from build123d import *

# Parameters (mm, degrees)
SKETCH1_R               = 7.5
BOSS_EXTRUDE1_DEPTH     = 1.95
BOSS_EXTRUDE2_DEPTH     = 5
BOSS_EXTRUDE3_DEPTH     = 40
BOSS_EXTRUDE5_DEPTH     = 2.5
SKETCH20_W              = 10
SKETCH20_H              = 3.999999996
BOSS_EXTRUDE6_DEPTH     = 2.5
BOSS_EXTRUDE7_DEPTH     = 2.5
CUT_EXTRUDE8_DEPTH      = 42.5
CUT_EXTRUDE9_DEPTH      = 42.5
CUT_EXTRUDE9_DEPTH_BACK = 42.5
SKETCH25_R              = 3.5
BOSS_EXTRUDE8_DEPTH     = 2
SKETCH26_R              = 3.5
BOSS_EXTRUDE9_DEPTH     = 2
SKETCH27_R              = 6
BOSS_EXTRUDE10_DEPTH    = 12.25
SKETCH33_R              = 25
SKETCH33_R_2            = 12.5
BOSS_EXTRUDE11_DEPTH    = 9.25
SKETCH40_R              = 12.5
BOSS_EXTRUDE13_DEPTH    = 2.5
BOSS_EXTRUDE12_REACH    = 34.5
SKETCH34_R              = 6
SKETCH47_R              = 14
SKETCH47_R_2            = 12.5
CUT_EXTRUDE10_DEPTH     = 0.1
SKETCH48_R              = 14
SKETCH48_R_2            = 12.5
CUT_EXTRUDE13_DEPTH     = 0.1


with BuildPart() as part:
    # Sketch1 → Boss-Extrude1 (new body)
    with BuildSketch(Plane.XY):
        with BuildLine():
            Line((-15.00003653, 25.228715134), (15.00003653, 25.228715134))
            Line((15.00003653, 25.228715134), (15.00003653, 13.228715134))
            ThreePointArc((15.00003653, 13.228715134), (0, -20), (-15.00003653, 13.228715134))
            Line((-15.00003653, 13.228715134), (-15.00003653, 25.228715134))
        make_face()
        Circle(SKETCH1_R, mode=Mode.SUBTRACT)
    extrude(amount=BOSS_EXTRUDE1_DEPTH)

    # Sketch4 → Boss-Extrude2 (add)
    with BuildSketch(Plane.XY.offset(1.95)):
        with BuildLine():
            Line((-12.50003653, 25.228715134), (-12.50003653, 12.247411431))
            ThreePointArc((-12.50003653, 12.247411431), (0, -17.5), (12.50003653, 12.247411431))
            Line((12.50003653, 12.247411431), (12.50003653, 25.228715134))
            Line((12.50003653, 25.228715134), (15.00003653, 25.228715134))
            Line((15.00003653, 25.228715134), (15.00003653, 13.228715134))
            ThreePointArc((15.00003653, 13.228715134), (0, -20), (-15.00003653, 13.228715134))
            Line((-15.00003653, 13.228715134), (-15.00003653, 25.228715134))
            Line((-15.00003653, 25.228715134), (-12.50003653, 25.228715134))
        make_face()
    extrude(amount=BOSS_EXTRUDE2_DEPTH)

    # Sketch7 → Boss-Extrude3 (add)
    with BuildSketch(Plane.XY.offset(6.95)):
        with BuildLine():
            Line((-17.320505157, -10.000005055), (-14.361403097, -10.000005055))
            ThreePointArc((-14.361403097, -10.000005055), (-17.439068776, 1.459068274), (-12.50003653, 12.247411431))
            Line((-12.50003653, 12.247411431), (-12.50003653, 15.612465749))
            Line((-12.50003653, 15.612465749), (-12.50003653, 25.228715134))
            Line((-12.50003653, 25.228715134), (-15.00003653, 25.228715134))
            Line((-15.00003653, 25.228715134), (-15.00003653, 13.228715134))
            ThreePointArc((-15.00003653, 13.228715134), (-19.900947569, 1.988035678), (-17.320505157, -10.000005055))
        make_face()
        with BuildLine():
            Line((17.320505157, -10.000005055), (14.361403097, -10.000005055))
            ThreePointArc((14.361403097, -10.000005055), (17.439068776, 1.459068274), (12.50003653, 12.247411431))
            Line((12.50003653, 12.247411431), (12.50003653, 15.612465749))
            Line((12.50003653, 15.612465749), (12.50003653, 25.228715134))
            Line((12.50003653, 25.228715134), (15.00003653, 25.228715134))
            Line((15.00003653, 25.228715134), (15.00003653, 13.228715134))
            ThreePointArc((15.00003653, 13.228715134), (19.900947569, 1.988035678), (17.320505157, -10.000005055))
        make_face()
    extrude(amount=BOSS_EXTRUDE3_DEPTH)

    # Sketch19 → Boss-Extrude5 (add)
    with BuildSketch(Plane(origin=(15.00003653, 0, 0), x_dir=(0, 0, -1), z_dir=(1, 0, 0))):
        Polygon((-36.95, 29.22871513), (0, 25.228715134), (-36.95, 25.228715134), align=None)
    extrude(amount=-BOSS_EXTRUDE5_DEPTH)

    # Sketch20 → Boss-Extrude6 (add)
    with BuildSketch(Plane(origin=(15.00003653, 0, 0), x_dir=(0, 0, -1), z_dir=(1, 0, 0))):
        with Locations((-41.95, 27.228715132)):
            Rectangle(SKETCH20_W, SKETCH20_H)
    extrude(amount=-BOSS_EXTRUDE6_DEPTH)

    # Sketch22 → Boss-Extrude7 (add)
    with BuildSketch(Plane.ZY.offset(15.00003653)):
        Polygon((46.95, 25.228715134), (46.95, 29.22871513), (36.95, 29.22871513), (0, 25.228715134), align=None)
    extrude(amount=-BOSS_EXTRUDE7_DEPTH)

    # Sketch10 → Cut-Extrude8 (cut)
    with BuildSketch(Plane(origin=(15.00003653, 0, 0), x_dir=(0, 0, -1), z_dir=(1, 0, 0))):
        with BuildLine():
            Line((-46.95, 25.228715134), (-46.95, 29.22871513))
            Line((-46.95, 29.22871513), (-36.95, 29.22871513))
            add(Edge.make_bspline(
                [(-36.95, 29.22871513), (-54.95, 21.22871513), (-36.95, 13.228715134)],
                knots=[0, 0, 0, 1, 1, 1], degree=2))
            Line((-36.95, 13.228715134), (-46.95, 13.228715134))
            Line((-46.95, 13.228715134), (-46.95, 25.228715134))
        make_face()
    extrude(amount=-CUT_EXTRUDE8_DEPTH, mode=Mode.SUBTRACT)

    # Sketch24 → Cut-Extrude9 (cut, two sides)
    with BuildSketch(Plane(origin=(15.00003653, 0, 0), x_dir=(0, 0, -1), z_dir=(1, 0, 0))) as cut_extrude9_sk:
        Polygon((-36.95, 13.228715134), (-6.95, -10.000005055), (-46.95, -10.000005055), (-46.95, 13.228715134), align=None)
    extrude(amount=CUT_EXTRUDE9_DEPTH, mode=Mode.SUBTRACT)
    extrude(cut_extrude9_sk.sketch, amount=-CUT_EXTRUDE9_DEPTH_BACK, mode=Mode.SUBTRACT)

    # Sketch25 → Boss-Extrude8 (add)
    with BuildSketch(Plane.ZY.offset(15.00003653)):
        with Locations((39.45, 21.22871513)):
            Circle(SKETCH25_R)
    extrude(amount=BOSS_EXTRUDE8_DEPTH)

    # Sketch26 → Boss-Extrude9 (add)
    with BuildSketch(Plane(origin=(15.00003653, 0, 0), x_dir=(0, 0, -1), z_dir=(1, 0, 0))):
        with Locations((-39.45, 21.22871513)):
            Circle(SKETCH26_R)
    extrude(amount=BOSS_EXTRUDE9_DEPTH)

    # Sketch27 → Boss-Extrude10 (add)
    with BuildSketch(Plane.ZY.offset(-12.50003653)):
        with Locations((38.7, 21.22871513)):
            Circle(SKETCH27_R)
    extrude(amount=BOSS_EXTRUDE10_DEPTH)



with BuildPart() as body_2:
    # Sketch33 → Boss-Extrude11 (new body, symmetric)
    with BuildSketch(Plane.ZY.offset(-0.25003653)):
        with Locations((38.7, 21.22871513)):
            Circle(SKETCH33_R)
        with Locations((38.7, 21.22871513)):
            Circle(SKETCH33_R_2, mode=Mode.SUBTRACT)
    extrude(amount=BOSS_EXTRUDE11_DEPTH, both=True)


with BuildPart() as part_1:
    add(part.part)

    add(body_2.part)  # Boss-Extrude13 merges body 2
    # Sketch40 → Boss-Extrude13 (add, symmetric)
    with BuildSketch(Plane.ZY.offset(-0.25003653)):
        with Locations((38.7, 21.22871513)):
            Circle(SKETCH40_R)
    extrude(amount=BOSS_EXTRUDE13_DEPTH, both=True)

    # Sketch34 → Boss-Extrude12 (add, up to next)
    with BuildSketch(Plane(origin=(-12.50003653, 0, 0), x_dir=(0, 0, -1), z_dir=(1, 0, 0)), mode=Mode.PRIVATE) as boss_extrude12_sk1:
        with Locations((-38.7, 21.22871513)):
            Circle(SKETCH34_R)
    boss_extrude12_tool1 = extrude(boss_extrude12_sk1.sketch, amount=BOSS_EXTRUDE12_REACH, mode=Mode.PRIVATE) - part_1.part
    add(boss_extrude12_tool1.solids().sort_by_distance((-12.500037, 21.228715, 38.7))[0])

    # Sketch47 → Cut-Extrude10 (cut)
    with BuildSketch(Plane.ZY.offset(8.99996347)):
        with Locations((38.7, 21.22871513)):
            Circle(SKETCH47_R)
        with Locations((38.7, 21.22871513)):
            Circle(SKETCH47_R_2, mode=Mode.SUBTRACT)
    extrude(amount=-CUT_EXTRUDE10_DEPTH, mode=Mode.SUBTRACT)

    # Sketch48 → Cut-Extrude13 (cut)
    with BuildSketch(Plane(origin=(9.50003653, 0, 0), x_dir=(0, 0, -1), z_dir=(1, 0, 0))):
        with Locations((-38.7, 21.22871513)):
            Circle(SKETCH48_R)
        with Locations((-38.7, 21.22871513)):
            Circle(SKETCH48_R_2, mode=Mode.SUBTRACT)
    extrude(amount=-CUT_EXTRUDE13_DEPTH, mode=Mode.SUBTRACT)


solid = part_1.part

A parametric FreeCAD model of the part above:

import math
import FreeCAD as App
import Part
import Sketcher

V = App.Vector
Q = App.Units.Quantity

doc = App.newDocument("Part")
body = doc.addObject("PartDesign::Body", "Body")

sketch1 = body.newObject("Sketcher::SketchObject", "Sketch")
sketch1.AttachmentSupport = (doc.getObject("XY_Plane"), [""])
sketch1.MapMode = "FlatFace"
sketch1.addGeometry(Part.LineSegment(V(15.000037, 25.228715, 0), V(-15.000037, 25.228715, 0)), False)
sketch1.addGeometry(Part.LineSegment(V(-15.000037, 25.228715, 0), V(-15.000037, 13.228715, 0)), False)
sketch1.addGeometry(Part.ArcOfCircle(Part.Circle(V(0, 0, 0), V(0, 0, 1), 20), math.radians(138.590536), math.radians(401.409464)), False)
sketch1.addGeometry(Part.LineSegment(V(15.000037, 13.228715, 0), V(15.000037, 25.228715, 0)), False)
sketch1.addGeometry(Part.Circle(V(0, 0, 0), V(0, 0, 1), 7.5), False)
sketch1.addConstraint(Sketcher.Constraint("Coincident", 0, 2, 1, 1))
sketch1.addConstraint(Sketcher.Constraint("Coincident", 1, 2, 2, 1))
sketch1.addConstraint(Sketcher.Constraint("Coincident", 2, 2, 3, 1))
sketch1.addConstraint(Sketcher.Constraint("Coincident", 3, 2, 0, 1))
sketch1.addConstraint(Sketcher.Constraint("Horizontal", 0))
sketch1.addConstraint(Sketcher.Constraint("Vertical", 1))
sketch1.addConstraint(Sketcher.Constraint("Vertical", 3))
sketch1.addConstraint(Sketcher.Constraint("Coincident", 2, 3, -1, 1))
sketch1.addConstraint(Sketcher.Constraint("Coincident", 4, 3, -1, 1))
sketch1.addConstraint(Sketcher.Constraint("Horizontal", 1, 2, 2, 2))
sketch1.addConstraint(Sketcher.Constraint("Diameter", 4, Q("15 mm")))
sketch1.addConstraint(Sketcher.Constraint("Radius", 2, Q("20 mm")))
sketch1.addConstraint(Sketcher.Constraint("DistanceY", 1, 2, 1, 1, Q("12 mm")))
sketch1.addConstraint(Sketcher.Constraint("DistanceX", 0, 2, 0, 1, Q("30.000073 mm")))
pad1 = body.newObject("PartDesign::Pad", "Pad")
pad1.Profile = sketch1
pad1.Length = 1.95

sketch2 = body.newObject("Sketcher::SketchObject", "Sketch001")
sketch2.AttachmentSupport = (doc.getObject("XY_Plane"), [""])
sketch2.MapMode = "FlatFace"
sketch2.AttachmentOffset = App.Placement(V(0, 0, 1.95), App.Rotation())
sketch2.addGeometry(Part.LineSegment(V(-12.500037, 12.247411, 0), V(-12.500037, 25.228715, 0)), False)
sketch2.addGeometry(Part.LineSegment(V(-12.500037, 25.228715, 0), V(-15.000037, 25.228715, 0)), False)
sketch2.addGeometry(Part.LineSegment(V(-15.000037, 25.228715, 0), V(-15.000037, 13.228715, 0)), False)
sketch2.addGeometry(Part.ArcOfCircle(Part.Circle(V(0, 0, 0), V(0, 0, 1), 20), math.radians(138.590536), math.radians(401.409464)), False)
sketch2.addGeometry(Part.LineSegment(V(15.000037, 13.228715, 0), V(15.000037, 25.228715, 0)), False)
sketch2.addGeometry(Part.LineSegment(V(15.000037, 25.228715, 0), V(12.500037, 25.228715, 0)), False)
sketch2.addGeometry(Part.LineSegment(V(12.500037, 25.228715, 0), V(12.500037, 12.247411, 0)), False)
sketch2.addGeometry(Part.ArcOfCircle(Part.Circle(V(0, 0, 0), V(0, 0, 1), 17.5), math.radians(135.584862), math.radians(404.415138)), False)
sketch2.addConstraint(Sketcher.Constraint("Coincident", 0, 2, 1, 1))
sketch2.addConstraint(Sketcher.Constraint("Coincident", 1, 2, 2, 1))
sketch2.addConstraint(Sketcher.Constraint("Coincident", 2, 2, 3, 1))
sketch2.addConstraint(Sketcher.Constraint("Coincident", 3, 2, 4, 1))
sketch2.addConstraint(Sketcher.Constraint("Coincident", 4, 2, 5, 1))
sketch2.addConstraint(Sketcher.Constraint("Coincident", 5, 2, 6, 1))
sketch2.addConstraint(Sketcher.Constraint("Coincident", 6, 2, 7, 2))
sketch2.addConstraint(Sketcher.Constraint("Coincident", 7, 1, 0, 1))
sketch2.addConstraint(Sketcher.Constraint("Vertical", 0))
sketch2.addConstraint(Sketcher.Constraint("Horizontal", 1))
sketch2.addConstraint(Sketcher.Constraint("Vertical", 2))
sketch2.addConstraint(Sketcher.Constraint("Vertical", 4))
sketch2.addConstraint(Sketcher.Constraint("Horizontal", 5))
sketch2.addConstraint(Sketcher.Constraint("Vertical", 6))
sketch2.addConstraint(Sketcher.Constraint("Coincident", 3, 3, -1, 1))
sketch2.addConstraint(Sketcher.Constraint("Coincident", 7, 3, -1, 1))
sketch2.addConstraint(Sketcher.Constraint("Symmetric", 1, 2, 4, 2, -2))
sketch2.addConstraint(Sketcher.Constraint("Horizontal", 6, 2, 7, 1))
sketch2.addConstraint(Sketcher.Constraint("Radius", 3, Q("20 mm")))
sketch2.addConstraint(Sketcher.Constraint("Radius", 7, Q("17.5 mm")))
sketch2.addConstraint(Sketcher.Constraint("DistanceY", 2, 2, 2, 1, Q("12 mm")))
sketch2.addConstraint(Sketcher.Constraint("DistanceX", 1, 2, 1, 1, Q("2.5 mm")))
sketch2.addConstraint(Sketcher.Constraint("DistanceY", 0, 1, 0, 2, Q("12.981304 mm")))
pad2 = body.newObject("PartDesign::Pad", "Pad001")
pad2.Profile = sketch2
pad2.Length = 5

sketch3 = body.newObject("Sketcher::SketchObject", "Sketch002")
sketch3.AttachmentSupport = (doc.getObject("XY_Plane"), [""])
sketch3.MapMode = "FlatFace"
sketch3.AttachmentOffset = App.Placement(V(0, 0, 6.95), App.Rotation())
sketch3.addGeometry(Part.LineSegment(V(-17.320505, -10.000005, 0), V(-14.361403, -10.000005, 0)), False)
sketch3.addGeometry(Part.ArcOfCircle(Part.Circle(V(0, 0, 0), V(0, 0, 1), 17.5), math.radians(135.584862), math.radians(214.849925)), False)
sketch3.addGeometry(Part.LineSegment(V(-12.500037, 12.247411, 0), V(-12.500037, 25.228715, 0)), False)
sketch3.addGeometry(Part.LineSegment(V(-12.500037, 25.228715, 0), V(-15.000037, 25.228715, 0)), False)
sketch3.addGeometry(Part.LineSegment(V(-15.000037, 25.228715, 0), V(-15.000037, 13.228715, 0)), False)
sketch3.addGeometry(Part.ArcOfCircle(Part.Circle(V(0, 0, 0), V(0, 0, 1), 20), math.radians(138.590536), math.radians(210.000017)), False)
sketch3.addGeometry(Part.LineSegment(V(14.361403, -10.000005, 0), V(17.320505, -10.000005, 0)), False)
sketch3.addGeometry(Part.ArcOfCircle(Part.Circle(V(0, 0, 0), V(0, 0, 1), 20), math.radians(-30.000017), math.radians(41.409464)), False)
sketch3.addGeometry(Part.LineSegment(V(15.000037, 13.228715, 0), V(15.000037, 25.228715, 0)), False)
sketch3.addGeometry(Part.LineSegment(V(15.000037, 25.228715, 0), V(12.500037, 25.228715, 0)), False)
sketch3.addGeometry(Part.LineSegment(V(12.500037, 25.228715, 0), V(12.500037, 12.247411, 0)), False)
sketch3.addGeometry(Part.ArcOfCircle(Part.Circle(V(0, 0, 0), V(0, 0, 1), 17.5), math.radians(-34.849925), math.radians(44.415138)), False)
sketch3.addConstraint(Sketcher.Constraint("Coincident", 0, 2, 1, 2))
sketch3.addConstraint(Sketcher.Constraint("Coincident", 1, 1, 2, 1))
sketch3.addConstraint(Sketcher.Constraint("Coincident", 2, 2, 3, 1))
sketch3.addConstraint(Sketcher.Constraint("Coincident", 3, 2, 4, 1))
sketch3.addConstraint(Sketcher.Constraint("Coincident", 4, 2, 5, 1))
sketch3.addConstraint(Sketcher.Constraint("Coincident", 5, 2, 0, 1))
sketch3.addConstraint(Sketcher.Constraint("Coincident", 6, 2, 7, 1))
sketch3.addConstraint(Sketcher.Constraint("Coincident", 7, 2, 8, 1))
sketch3.addConstraint(Sketcher.Constraint("Coincident", 8, 2, 9, 1))
sketch3.addConstraint(Sketcher.Constraint("Coincident", 9, 2, 10, 1))
sketch3.addConstraint(Sketcher.Constraint("Coincident", 10, 2, 11, 2))
sketch3.addConstraint(Sketcher.Constraint("Coincident", 11, 1, 6, 1))
sketch3.addConstraint(Sketcher.Constraint("Horizontal", 0))
sketch3.addConstraint(Sketcher.Constraint("Vertical", 2))
sketch3.addConstraint(Sketcher.Constraint("Horizontal", 3))
sketch3.addConstraint(Sketcher.Constraint("Vertical", 4))
sketch3.addConstraint(Sketcher.Constraint("Horizontal", 6))
sketch3.addConstraint(Sketcher.Constraint("Vertical", 8))
sketch3.addConstraint(Sketcher.Constraint("Horizontal", 9))
sketch3.addConstraint(Sketcher.Constraint("Vertical", 10))
sketch3.addConstraint(Sketcher.Constraint("Coincident", 1, 3, -1, 1))
sketch3.addConstraint(Sketcher.Constraint("Coincident", 5, 3, -1, 1))
sketch3.addConstraint(Sketcher.Constraint("Coincident", 7, 3, -1, 1))
sketch3.addConstraint(Sketcher.Constraint("Coincident", 11, 3, -1, 1))
sketch3.addConstraint(Sketcher.Constraint("Equal", 5, 7))
sketch3.addConstraint(Sketcher.Constraint("Equal", 1, 11))
sketch3.addConstraint(Sketcher.Constraint("Symmetric", 3, 2, 8, 2, -2))
sketch3.addConstraint(Sketcher.Constraint("Horizontal", 5, 2, 6, 2))
sketch3.addConstraint(Sketcher.Constraint("Horizontal", 1, 1, 10, 2))
sketch3.addConstraint(Sketcher.Constraint("Radius", 5, Q("20 mm")))
sketch3.addConstraint(Sketcher.Constraint("Radius", 1, Q("17.5 mm")))
sketch3.addConstraint(Sketcher.Constraint("DistanceY", 4, 2, 4, 1, Q("12 mm")))
sketch3.addConstraint(Sketcher.Constraint("DistanceX", 3, 2, 3, 1, Q("2.5 mm")))
sketch3.addConstraint(Sketcher.Constraint("DistanceX", 0, 1, 0, 2, Q("2.959102 mm")))
sketch3.addConstraint(Sketcher.Constraint("DistanceY", 2, 1, 2, 2, Q("12.981304 mm")))
pad3 = body.newObject("PartDesign::Pad", "Pad002")
pad3.Profile = sketch3
pad3.Length = 40

sketch4 = body.newObject("Sketcher::SketchObject", "Sketch003")
sketch4.AttachmentSupport = (doc.getObject("YZ_Plane"), [""])
sketch4.MapMode = "FlatFace"
sketch4.AttachmentOffset = App.Placement(V(0, 0, 15.000037), App.Rotation())
sketch4.addGeometry(Part.LineSegment(V(25.228715, 0, 0), V(29.228715, 36.95, 0)), False)
sketch4.addGeometry(Part.LineSegment(V(29.228715, 36.95, 0), V(25.228715, 36.95, 0)), False)
sketch4.addGeometry(Part.LineSegment(V(25.228715, 36.95, 0), V(25.228715, 0, 0)), False)
sketch4.addConstraint(Sketcher.Constraint("Coincident", 0, 2, 1, 1))
sketch4.addConstraint(Sketcher.Constraint("Coincident", 1, 2, 2, 1))
sketch4.addConstraint(Sketcher.Constraint("Coincident", 2, 2, 0, 1))
sketch4.addConstraint(Sketcher.Constraint("Horizontal", 1))
sketch4.addConstraint(Sketcher.Constraint("Vertical", 2))
sketch4.addConstraint(Sketcher.Constraint("PointOnObject", 2, 2, -1))
sketch4.addConstraint(Sketcher.Constraint("DistanceX", 1, 2, 1, 1, Q("4 mm")))
sketch4.addConstraint(Sketcher.Constraint("DistanceY", 2, 2, 2, 1, Q("36.95 mm")))
sketch4.addConstraint(Sketcher.Constraint("DistanceX", -1, 1, 0, 2, Q("29.228715 mm")))
pad4 = body.newObject("PartDesign::Pad", "Pad003")
pad4.Profile = sketch4
pad4.Length = 2.5
pad4.Reversed = True

sketch5 = body.newObject("Sketcher::SketchObject", "Sketch004")
sketch5.AttachmentSupport = (doc.getObject("YZ_Plane"), [""])
sketch5.MapMode = "FlatFace"
sketch5.AttachmentOffset = App.Placement(V(0, 0, 15.000037), App.Rotation())
sketch5.addGeometry(Part.LineSegment(V(29.228715, 46.95, 0), V(25.228715, 46.95, 0)), False)
sketch5.addGeometry(Part.LineSegment(V(25.228715, 46.95, 0), V(25.228715, 36.95, 0)), False)
sketch5.addGeometry(Part.LineSegment(V(25.228715, 36.95, 0), V(29.228715, 36.95, 0)), False)
sketch5.addGeometry(Part.LineSegment(V(29.228715, 36.95, 0), V(29.228715, 46.95, 0)), False)
sketch5.addConstraint(Sketcher.Constraint("Coincident", 0, 2, 1, 1))
sketch5.addConstraint(Sketcher.Constraint("Coincident", 1, 2, 2, 1))
sketch5.addConstraint(Sketcher.Constraint("Coincident", 2, 2, 3, 1))
sketch5.addConstraint(Sketcher.Constraint("Coincident", 3, 2, 0, 1))
sketch5.addConstraint(Sketcher.Constraint("Horizontal", 0))
sketch5.addConstraint(Sketcher.Constraint("Vertical", 1))
sketch5.addConstraint(Sketcher.Constraint("Horizontal", 2))
sketch5.addConstraint(Sketcher.Constraint("Vertical", 3))
sketch5.addConstraint(Sketcher.Constraint("DistanceX", 0, 2, 0, 1, Q("4 mm")))
sketch5.addConstraint(Sketcher.Constraint("DistanceY", 1, 2, 1, 1, Q("10 mm")))
sketch5.addConstraint(Sketcher.Constraint("DistanceY", -1, 1, 0, 2, Q("46.95 mm")))
sketch5.addConstraint(Sketcher.Constraint("DistanceX", -1, 1, 0, 2, Q("25.228715 mm")))
pad5 = body.newObject("PartDesign::Pad", "Pad004")
pad5.Profile = sketch5
pad5.Length = 2.5
pad5.Reversed = True

sketch6 = body.newObject("Sketcher::SketchObject", "Sketch005")
sketch6.AttachmentSupport = (doc.getObject("YZ_Plane"), [""])
sketch6.MapMode = "FlatFace"
sketch6.AttachmentOffset = App.Placement(V(0, 0, -15.000037), App.Rotation())
sketch6.addGeometry(Part.LineSegment(V(25.228715, 46.95, 0), V(29.228715, 46.95, 0)), False)
sketch6.addGeometry(Part.LineSegment(V(29.228715, 46.95, 0), V(29.228715, 36.95, 0)), False)
sketch6.addGeometry(Part.LineSegment(V(29.228715, 36.95, 0), V(25.228715, 0, 0)), False)
sketch6.addGeometry(Part.LineSegment(V(25.228715, 0, 0), V(25.228715, 46.95, 0)), False)
sketch6.addConstraint(Sketcher.Constraint("Coincident", 0, 2, 1, 1))
sketch6.addConstraint(Sketcher.Constraint("Coincident", 1, 2, 2, 1))
sketch6.addConstraint(Sketcher.Constraint("Coincident", 2, 2, 3, 1))
sketch6.addConstraint(Sketcher.Constraint("Coincident", 3, 2, 0, 1))
sketch6.addConstraint(Sketcher.Constraint("Horizontal", 0))
sketch6.addConstraint(Sketcher.Constraint("Vertical", 1))
sketch6.addConstraint(Sketcher.Constraint("Vertical", 3))
sketch6.addConstraint(Sketcher.Constraint("PointOnObject", 2, 2, -1))
sketch6.addConstraint(Sketcher.Constraint("DistanceX", 0, 1, 0, 2, Q("4 mm")))
sketch6.addConstraint(Sketcher.Constraint("DistanceY", 1, 2, 1, 1, Q("10 mm")))
sketch6.addConstraint(Sketcher.Constraint("DistanceY", 3, 1, 3, 2, Q("46.95 mm")))
sketch6.addConstraint(Sketcher.Constraint("DistanceX", -1, 1, 0, 2, Q("29.228715 mm")))
pad6 = body.newObject("PartDesign::Pad", "Pad005")
pad6.Profile = sketch6
pad6.Length = 2.5

sketch7 = body.newObject("Sketcher::SketchObject", "Sketch006")
sketch7.AttachmentSupport = (doc.getObject("YZ_Plane"), [""])
sketch7.MapMode = "FlatFace"
sketch7.AttachmentOffset = App.Placement(V(0, 0, 15.000037), App.Rotation())
sketch7.addGeometry(Part.LineSegment(V(29.228715, 36.95, 0), V(29.228715, 46.95, 0)), False)
sketch7.addGeometry(Part.LineSegment(V(29.228715, 46.95, 0), V(13.228715, 46.95, 0)), False)
sketch7.addGeometry(Part.LineSegment(V(13.228715, 46.95, 0), V(13.228715, 36.95, 0)), False)
sketch7.addGeometry(Part.BSplineCurve([V(29.228715, 36.95, 0), V(21.228715, 54.95, 0), V(13.228715, 36.95, 0)], [3, 3], [0, 1], False, 2, [1, 1, 1], False), False)
sketch7.addConstraint(Sketcher.Constraint("Block", 3))
sketch7.addConstraint(Sketcher.Constraint("Coincident", 0, 2, 1, 1))
sketch7.addConstraint(Sketcher.Constraint("Coincident", 1, 2, 2, 1))
sketch7.addConstraint(Sketcher.Constraint("Coincident", 2, 2, 3, 2))
sketch7.addConstraint(Sketcher.Constraint("Coincident", 3, 1, 0, 1))
sketch7.addConstraint(Sketcher.Constraint("Vertical", 0))
sketch7.addConstraint(Sketcher.Constraint("Horizontal", 1))
sketch7.addConstraint(Sketcher.Constraint("Vertical", 2))
sketch7.addConstraint(Sketcher.Constraint("DistanceY", 0, 1, 0, 2, Q("10 mm")))
pocket1 = body.newObject("PartDesign::Pocket", "Pocket")
pocket1.Profile = sketch7
pocket1.Length = 42.5

sketch8 = body.newObject("Sketcher::SketchObject", "Sketch007")
sketch8.AttachmentSupport = (doc.getObject("YZ_Plane"), [""])
sketch8.MapMode = "FlatFace"
sketch8.AttachmentOffset = App.Placement(V(0, 0, 15.000037), App.Rotation())
sketch8.addGeometry(Part.LineSegment(V(-10.000005, 6.95, 0), V(13.228715, 36.95, 0)), False)
sketch8.addGeometry(Part.LineSegment(V(13.228715, 36.95, 0), V(13.228715, 46.95, 0)), False)
sketch8.addGeometry(Part.LineSegment(V(13.228715, 46.95, 0), V(-10.000005, 46.95, 0)), False)
sketch8.addGeometry(Part.LineSegment(V(-10.000005, 46.95, 0), V(-10.000005, 6.95, 0)), False)
sketch8.addConstraint(Sketcher.Constraint("Coincident", 0, 2, 1, 1))
sketch8.addConstraint(Sketcher.Constraint("Coincident", 1, 2, 2, 1))
sketch8.addConstraint(Sketcher.Constraint("Coincident", 2, 2, 3, 1))
sketch8.addConstraint(Sketcher.Constraint("Coincident", 3, 2, 0, 1))
sketch8.addConstraint(Sketcher.Constraint("Vertical", 1))
sketch8.addConstraint(Sketcher.Constraint("Horizontal", 2))
sketch8.addConstraint(Sketcher.Constraint("Vertical", 3))
sketch8.addConstraint(Sketcher.Constraint("DistanceY", 1, 1, 1, 2, Q("10 mm")))
sketch8.addConstraint(Sketcher.Constraint("DistanceY", 3, 2, 3, 1, Q("40 mm")))
sketch8.addConstraint(Sketcher.Constraint("DistanceY", -1, 1, 0, 2, Q("36.95 mm")))
sketch8.addConstraint(Sketcher.Constraint("DistanceX", 2, 2, 2, 1, Q("23.22872 mm")))
sketch8.addConstraint(Sketcher.Constraint("DistanceX", -1, 1, 0, 2, Q("13.228715 mm")))
pocket2 = body.newObject("PartDesign::Pocket", "Pocket001")
pocket2.Profile = sketch8
pocket2.Type = "ThroughAll"
pocket2.Midplane = True

sketch9 = body.newObject("Sketcher::SketchObject", "Sketch008")
sketch9.AttachmentSupport = (doc.getObject("YZ_Plane"), [""])
sketch9.MapMode = "FlatFace"
sketch9.AttachmentOffset = App.Placement(V(0, 0, -15.000037), App.Rotation())
sketch9.addGeometry(Part.Circle(V(21.228715, 39.45, 0), V(0, 0, 1), 3.5), False)
sketch9.addConstraint(Sketcher.Constraint("Diameter", 0, Q("7 mm")))
sketch9.addConstraint(Sketcher.Constraint("DistanceY", -1, 1, 0, 3, Q("39.45 mm")))
sketch9.addConstraint(Sketcher.Constraint("DistanceX", -1, 1, 0, 3, Q("21.228715 mm")))
pad7 = body.newObject("PartDesign::Pad", "Pad006")
pad7.Profile = sketch9
pad7.Length = 2
pad7.Reversed = True

sketch10 = body.newObject("Sketcher::SketchObject", "Sketch009")
sketch10.AttachmentSupport = (doc.getObject("YZ_Plane"), [""])
sketch10.MapMode = "FlatFace"
sketch10.AttachmentOffset = App.Placement(V(0, 0, 15.000037), App.Rotation())
sketch10.addGeometry(Part.Circle(V(21.228715, 39.45, 0), V(0, 0, 1), 3.5), False)
sketch10.addConstraint(Sketcher.Constraint("Diameter", 0, Q("7 mm")))
sketch10.addConstraint(Sketcher.Constraint("DistanceY", -1, 1, 0, 3, Q("39.45 mm")))
sketch10.addConstraint(Sketcher.Constraint("DistanceX", -1, 1, 0, 3, Q("21.228715 mm")))
pad8 = body.newObject("PartDesign::Pad", "Pad007")
pad8.Profile = sketch10
pad8.Length = 2

sketch11 = body.newObject("Sketcher::SketchObject", "Sketch010")
sketch11.AttachmentSupport = (doc.getObject("YZ_Plane"), [""])
sketch11.MapMode = "FlatFace"
sketch11.AttachmentOffset = App.Placement(V(0, 0, 12.500037), App.Rotation())
sketch11.addGeometry(Part.Circle(V(21.228715, 38.7, 0), V(0, 0, 1), 6), False)
sketch11.addConstraint(Sketcher.Constraint("Diameter", 0, Q("12 mm")))
sketch11.addConstraint(Sketcher.Constraint("DistanceY", -1, 1, 0, 3, Q("38.7 mm")))
sketch11.addConstraint(Sketcher.Constraint("DistanceX", -1, 1, 0, 3, Q("21.228715 mm")))
pad9 = body.newObject("PartDesign::Pad", "Pad008")
pad9.Profile = sketch11
pad9.Length = 12.25
pad9.Reversed = True
body2 = doc.addObject("PartDesign::Body", "Body001")

sketch12 = body2.newObject("Sketcher::SketchObject", "Sketch011")
sketch12.AttachmentSupport = (doc.getObject("YZ_Plane001"), [""])
sketch12.MapMode = "FlatFace"
sketch12.AttachmentOffset = App.Placement(V(0, 0, 0.250037), App.Rotation())
sketch12.addGeometry(Part.Circle(V(21.228715, 38.7, 0), V(0, 0, 1), 25), False)
sketch12.addGeometry(Part.Circle(V(21.228715, 38.7, 0), V(0, 0, 1), 12.5), False)
sketch12.addConstraint(Sketcher.Constraint("Coincident", 1, 3, 0, 3))
sketch12.addConstraint(Sketcher.Constraint("Diameter", 0, Q("50 mm")))
sketch12.addConstraint(Sketcher.Constraint("Diameter", 1, Q("25 mm")))
sketch12.addConstraint(Sketcher.Constraint("DistanceY", -1, 1, 0, 3, Q("38.7 mm")))
sketch12.addConstraint(Sketcher.Constraint("DistanceX", -1, 1, 0, 3, Q("21.228715 mm")))
pad10 = body2.newObject("PartDesign::Pad", "Pad009")
pad10.Profile = sketch12
pad10.Length = 18.5
pad10.Midplane = True
body.AllowCompound = True
doc.recompute()

boolean = body.newObject("PartDesign::Boolean", "Boolean")
boolean.Type = "Fuse"
boolean.addObjects([body2])

sketch13 = body.newObject("Sketcher::SketchObject", "Sketch012")
sketch13.AttachmentSupport = (doc.getObject("YZ_Plane"), [""])
sketch13.MapMode = "FlatFace"
sketch13.AttachmentOffset = App.Placement(V(0, 0, 0.250037), App.Rotation())
sketch13.addGeometry(Part.Circle(V(21.228715, 38.7, 0), V(0, 0, 1), 12.5), False)
sketch13.addConstraint(Sketcher.Constraint("Diameter", 0, Q("25 mm")))
sketch13.addConstraint(Sketcher.Constraint("DistanceY", -1, 1, 0, 3, Q("38.7 mm")))
sketch13.addConstraint(Sketcher.Constraint("DistanceX", -1, 1, 0, 3, Q("21.228715 mm")))
pad11 = body.newObject("PartDesign::Pad", "Pad010")
pad11.Profile = sketch13
pad11.Length = 5
pad11.Midplane = True

sketch14 = body.newObject("Sketcher::SketchObject", "Sketch013")
sketch14.AttachmentSupport = (doc.getObject("YZ_Plane"), [""])
sketch14.MapMode = "FlatFace"
sketch14.AttachmentOffset = App.Placement(V(0, 0, -12.500037), App.Rotation())
sketch14.addGeometry(Part.Circle(V(21.228715, 38.7, 0), V(0, 0, 1), 6), False)
sketch14.addConstraint(Sketcher.Constraint("Diameter", 0, Q("12 mm")))
sketch14.addConstraint(Sketcher.Constraint("DistanceY", -1, 1, 0, 3, Q("38.7 mm")))
sketch14.addConstraint(Sketcher.Constraint("DistanceX", -1, 1, 0, 3, Q("21.228715 mm")))
pad12 = body.newObject("PartDesign::Pad", "Pad011")
pad12.Profile = sketch14
pad12.Type = "UpToFirst"

sketch15 = body.newObject("Sketcher::SketchObject", "Sketch014")
sketch15.AttachmentSupport = (doc.getObject("YZ_Plane"), [""])
sketch15.MapMode = "FlatFace"
sketch15.AttachmentOffset = App.Placement(V(0, 0, -8.999963), App.Rotation())
sketch15.addGeometry(Part.Circle(V(21.228715, 38.7, 0), V(0, 0, 1), 14), False)
sketch15.addGeometry(Part.Circle(V(21.228715, 38.7, 0), V(0, 0, 1), 12.5), False)
sketch15.addConstraint(Sketcher.Constraint("Coincident", 1, 3, 0, 3))
sketch15.addConstraint(Sketcher.Constraint("Diameter", 0, Q("28 mm")))
sketch15.addConstraint(Sketcher.Constraint("Diameter", 1, Q("25 mm")))
sketch15.addConstraint(Sketcher.Constraint("DistanceY", -1, 1, 0, 3, Q("38.7 mm")))
sketch15.addConstraint(Sketcher.Constraint("DistanceX", -1, 1, 0, 3, Q("21.228715 mm")))
pocket3 = body.newObject("PartDesign::Pocket", "Pocket002")
pocket3.Profile = sketch15
pocket3.Length = 0.1
pocket3.Reversed = True

sketch16 = body.newObject("Sketcher::SketchObject", "Sketch015")
sketch16.AttachmentSupport = (doc.getObject("YZ_Plane"), [""])
sketch16.MapMode = "FlatFace"
sketch16.AttachmentOffset = App.Placement(V(0, 0, 9.500037), App.Rotation())
sketch16.addGeometry(Part.Circle(V(21.228715, 38.7, 0), V(0, 0, 1), 14), False)
sketch16.addGeometry(Part.Circle(V(21.228715, 38.7, 0), V(0, 0, 1), 12.5), False)
sketch16.addConstraint(Sketcher.Constraint("Coincident", 1, 3, 0, 3))
sketch16.addConstraint(Sketcher.Constraint("Diameter", 0, Q("28 mm")))
sketch16.addConstraint(Sketcher.Constraint("Diameter", 1, Q("25 mm")))
sketch16.addConstraint(Sketcher.Constraint("DistanceY", -1, 1, 0, 3, Q("38.7 mm")))
sketch16.addConstraint(Sketcher.Constraint("DistanceX", -1, 1, 0, 3, Q("21.228715 mm")))
pocket4 = body.newObject("PartDesign::Pocket", "Pocket003")
pocket4.Profile = sketch16
pocket4.Length = 0.1

doc.recompute()
